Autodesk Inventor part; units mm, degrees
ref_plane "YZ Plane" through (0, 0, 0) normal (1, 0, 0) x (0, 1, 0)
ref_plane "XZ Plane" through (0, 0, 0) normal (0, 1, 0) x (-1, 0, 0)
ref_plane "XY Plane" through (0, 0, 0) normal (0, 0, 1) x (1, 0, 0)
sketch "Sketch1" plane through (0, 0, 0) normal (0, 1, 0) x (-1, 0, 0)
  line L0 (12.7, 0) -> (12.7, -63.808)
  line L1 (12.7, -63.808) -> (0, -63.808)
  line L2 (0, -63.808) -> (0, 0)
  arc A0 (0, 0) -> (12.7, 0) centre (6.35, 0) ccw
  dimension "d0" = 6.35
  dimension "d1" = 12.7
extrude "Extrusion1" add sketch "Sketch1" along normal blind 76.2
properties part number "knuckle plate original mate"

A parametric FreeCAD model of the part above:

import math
import FreeCAD as App
import Part
import Sketcher
Q = App.Units.Quantity

doc = App.newDocument("Part")
body = doc.addObject("PartDesign::Body", "Body")

# Sketch on XZ plane
sketch1 = body.newObject("Sketcher::SketchObject", "Sketch")
sketch1.AttachmentSupport = (doc.getObject("XZ_Plane"), [""])
sketch1.MapMode = "FlatFace"
sketch1.addGeometry([
    Part.LineSegment(App.Vector(-12.7, -63.808, 0), App.Vector(-12.7, 0, 0)),
    Part.ArcOfCircle(Part.Circle(App.Vector(-6.35, 0, 0), App.Vector(0, 0, 1), 6.35), math.radians(180), math.radians(360)),
    Part.LineSegment(App.Vector(0, 0, 0), App.Vector(0, -63.808, 0)),
    Part.LineSegment(App.Vector(0, -63.808, 0), App.Vector(-12.7, -63.808, 0)),
], False)
sketch1.addConstraint([
    Sketcher.Constraint("Tangent", 0, 2, 1, 1),
    Sketcher.Constraint("Tangent", 1, 2, 2, 1),
    Sketcher.Constraint("Coincident", 2, 2, 3, 1),
    Sketcher.Constraint("Coincident", 3, 2, 0, 1),
    Sketcher.Constraint("Vertical", 0),
    Sketcher.Constraint("Vertical", 2),
    Sketcher.Constraint("Horizontal", 3),
    Sketcher.Constraint("Coincident", 1, 2, -1, 1),
    Sketcher.Constraint("Radius", 1, Q("0.25 in")),
    Sketcher.Constraint("DistanceY", 0, 1, 0, 2, Q("63.808 mm")),
])
pad1 = body.newObject("PartDesign::Pad", "Pad")
pad1.Profile = sketch1
pad1.Length = Q("3 in")
pad1.Reversed = True

doc.recompute()
